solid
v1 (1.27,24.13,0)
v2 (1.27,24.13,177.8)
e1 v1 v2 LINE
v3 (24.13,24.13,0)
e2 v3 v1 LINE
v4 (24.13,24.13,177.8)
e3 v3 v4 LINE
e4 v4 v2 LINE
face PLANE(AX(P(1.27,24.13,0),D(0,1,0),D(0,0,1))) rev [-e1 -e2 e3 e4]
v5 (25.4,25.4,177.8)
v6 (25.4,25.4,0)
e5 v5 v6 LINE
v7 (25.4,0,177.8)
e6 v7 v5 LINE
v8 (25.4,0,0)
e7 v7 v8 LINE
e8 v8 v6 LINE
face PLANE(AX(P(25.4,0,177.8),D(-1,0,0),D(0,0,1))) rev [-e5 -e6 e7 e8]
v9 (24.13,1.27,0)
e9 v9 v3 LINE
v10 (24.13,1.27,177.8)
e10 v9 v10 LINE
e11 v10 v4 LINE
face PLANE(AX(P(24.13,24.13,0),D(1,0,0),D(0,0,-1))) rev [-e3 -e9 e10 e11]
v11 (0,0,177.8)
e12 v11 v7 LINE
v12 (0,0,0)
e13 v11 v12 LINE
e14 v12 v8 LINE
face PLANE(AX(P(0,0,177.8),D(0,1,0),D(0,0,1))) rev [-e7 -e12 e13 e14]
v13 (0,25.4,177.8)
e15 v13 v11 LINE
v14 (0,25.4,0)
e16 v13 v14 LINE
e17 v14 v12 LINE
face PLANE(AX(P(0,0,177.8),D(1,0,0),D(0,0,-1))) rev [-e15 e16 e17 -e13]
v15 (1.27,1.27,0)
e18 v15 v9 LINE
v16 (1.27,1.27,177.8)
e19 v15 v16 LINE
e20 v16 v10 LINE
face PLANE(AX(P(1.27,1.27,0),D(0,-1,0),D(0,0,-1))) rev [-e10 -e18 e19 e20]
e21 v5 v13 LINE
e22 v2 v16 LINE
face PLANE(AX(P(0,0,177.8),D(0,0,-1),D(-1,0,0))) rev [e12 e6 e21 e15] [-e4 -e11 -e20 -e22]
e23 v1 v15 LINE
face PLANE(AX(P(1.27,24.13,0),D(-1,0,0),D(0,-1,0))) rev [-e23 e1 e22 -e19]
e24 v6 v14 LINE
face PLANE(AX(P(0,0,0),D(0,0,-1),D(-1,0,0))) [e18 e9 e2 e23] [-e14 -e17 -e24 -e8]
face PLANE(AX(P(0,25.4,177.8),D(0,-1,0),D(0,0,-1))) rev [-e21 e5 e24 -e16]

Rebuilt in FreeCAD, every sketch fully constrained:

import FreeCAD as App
import Part
import Sketcher

V = App.Vector
Q = App.Units.Quantity


def add_polygon(sketch, points):
    """Adds a closed chain of lines whose ends are joined by coincident constraints."""
    first, n = sketch.GeometryCount, len(points)
    for a, b in zip(points, points[1:] + points[:1]):
        sketch.addGeometry(Part.LineSegment(App.Vector(*a, 0), App.Vector(*b, 0)), False)
    for i in range(n):
        sketch.addConstraint(Sketcher.Constraint("Coincident", first + i, 2, first + (i + 1) % n, 1))

doc = App.newDocument("Part")
params = doc.addObject("Spreadsheet::Sheet", "Params")
for row, (alias, value) in enumerate([
    ("sketch1_width", "1 in"),
    ("pad1_length", "7 in"),
    ("sketch2_width", "0.9 in"),
    ("pocket1_length", "7 in"),
], start=1):
    params.set(f"A{row}", alias)
    params.set(f"B{row}", "=" + value)
    params.setAlias(f"B{row}", alias)

body = doc.addObject("PartDesign::Body", "Body")

sketch1 = body.newObject("Sketcher::SketchObject", "Sketch")
sketch1.AttachmentSupport = (doc.getObject("XY_Plane"), [""])
sketch1.MapMode = "FlatFace"
add_polygon(sketch1, [(0, 25), (0, 0), (25, 0), (25, 25)])
sketch1.addConstraint(Sketcher.Constraint("Vertical", 0))
sketch1.addConstraint(Sketcher.Constraint("Horizontal", 1))
sketch1.addConstraint(Sketcher.Constraint("Vertical", 2))
sketch1.addConstraint(Sketcher.Constraint("Horizontal", 3))
sketch1.addConstraint(Sketcher.Constraint("Coincident", 0, 2, -1, 1))
sketch1.addConstraint(Sketcher.Constraint("Equal", 3, 0))
sketch1.addConstraint(Sketcher.Constraint("DistanceX", 1, 1, 1, 2, Q("1 in")))
sketch1.setExpression("Constraints[10]", "Params.sketch1_width")
pad1 = body.newObject("PartDesign::Pad", "Pad")
pad1.Profile = sketch1
pad1.setExpression("Length", "Params.pad1_length")

sketch2 = body.newObject("Sketcher::SketchObject", "Sketch001")
sketch2.AttachmentSupport = (doc.getObject("XY_Plane"), [""])
sketch2.MapMode = "FlatFace"
sketch2.AttachmentOffset = App.Placement(V(0, 0, 7 * 25.4), App.Rotation())
add_polygon(sketch2, [(1, 24), (1, 1), (24, 1), (24, 24)])
sketch2.addConstraint(Sketcher.Constraint("Vertical", 0))
sketch2.addConstraint(Sketcher.Constraint("Horizontal", 1))
sketch2.addConstraint(Sketcher.Constraint("Vertical", 2))
sketch2.addConstraint(Sketcher.Constraint("Horizontal", 3))
sketch2.addConstraint(Sketcher.Constraint("Equal", 3, 0))
sketch2.addConstraint(Sketcher.Constraint("DistanceX", 1, 1, 1, 2, Q("0.9 in")))
sketch2.addConstraint(Sketcher.Constraint("DistanceX", -1, 1, 0, 2, Q("0.05 in")))
sketch2.addConstraint(Sketcher.Constraint("DistanceY", -1, 1, 0, 2, Q("0.05 in")))
sketch2.setExpression("Constraints[9]", "Params.sketch2_width")
pocket1 = body.newObject("PartDesign::Pocket", "Pocket")
pocket1.Profile = sketch2
pocket1.setExpression("Length", "Params.pocket1_length")

doc.recompute()
